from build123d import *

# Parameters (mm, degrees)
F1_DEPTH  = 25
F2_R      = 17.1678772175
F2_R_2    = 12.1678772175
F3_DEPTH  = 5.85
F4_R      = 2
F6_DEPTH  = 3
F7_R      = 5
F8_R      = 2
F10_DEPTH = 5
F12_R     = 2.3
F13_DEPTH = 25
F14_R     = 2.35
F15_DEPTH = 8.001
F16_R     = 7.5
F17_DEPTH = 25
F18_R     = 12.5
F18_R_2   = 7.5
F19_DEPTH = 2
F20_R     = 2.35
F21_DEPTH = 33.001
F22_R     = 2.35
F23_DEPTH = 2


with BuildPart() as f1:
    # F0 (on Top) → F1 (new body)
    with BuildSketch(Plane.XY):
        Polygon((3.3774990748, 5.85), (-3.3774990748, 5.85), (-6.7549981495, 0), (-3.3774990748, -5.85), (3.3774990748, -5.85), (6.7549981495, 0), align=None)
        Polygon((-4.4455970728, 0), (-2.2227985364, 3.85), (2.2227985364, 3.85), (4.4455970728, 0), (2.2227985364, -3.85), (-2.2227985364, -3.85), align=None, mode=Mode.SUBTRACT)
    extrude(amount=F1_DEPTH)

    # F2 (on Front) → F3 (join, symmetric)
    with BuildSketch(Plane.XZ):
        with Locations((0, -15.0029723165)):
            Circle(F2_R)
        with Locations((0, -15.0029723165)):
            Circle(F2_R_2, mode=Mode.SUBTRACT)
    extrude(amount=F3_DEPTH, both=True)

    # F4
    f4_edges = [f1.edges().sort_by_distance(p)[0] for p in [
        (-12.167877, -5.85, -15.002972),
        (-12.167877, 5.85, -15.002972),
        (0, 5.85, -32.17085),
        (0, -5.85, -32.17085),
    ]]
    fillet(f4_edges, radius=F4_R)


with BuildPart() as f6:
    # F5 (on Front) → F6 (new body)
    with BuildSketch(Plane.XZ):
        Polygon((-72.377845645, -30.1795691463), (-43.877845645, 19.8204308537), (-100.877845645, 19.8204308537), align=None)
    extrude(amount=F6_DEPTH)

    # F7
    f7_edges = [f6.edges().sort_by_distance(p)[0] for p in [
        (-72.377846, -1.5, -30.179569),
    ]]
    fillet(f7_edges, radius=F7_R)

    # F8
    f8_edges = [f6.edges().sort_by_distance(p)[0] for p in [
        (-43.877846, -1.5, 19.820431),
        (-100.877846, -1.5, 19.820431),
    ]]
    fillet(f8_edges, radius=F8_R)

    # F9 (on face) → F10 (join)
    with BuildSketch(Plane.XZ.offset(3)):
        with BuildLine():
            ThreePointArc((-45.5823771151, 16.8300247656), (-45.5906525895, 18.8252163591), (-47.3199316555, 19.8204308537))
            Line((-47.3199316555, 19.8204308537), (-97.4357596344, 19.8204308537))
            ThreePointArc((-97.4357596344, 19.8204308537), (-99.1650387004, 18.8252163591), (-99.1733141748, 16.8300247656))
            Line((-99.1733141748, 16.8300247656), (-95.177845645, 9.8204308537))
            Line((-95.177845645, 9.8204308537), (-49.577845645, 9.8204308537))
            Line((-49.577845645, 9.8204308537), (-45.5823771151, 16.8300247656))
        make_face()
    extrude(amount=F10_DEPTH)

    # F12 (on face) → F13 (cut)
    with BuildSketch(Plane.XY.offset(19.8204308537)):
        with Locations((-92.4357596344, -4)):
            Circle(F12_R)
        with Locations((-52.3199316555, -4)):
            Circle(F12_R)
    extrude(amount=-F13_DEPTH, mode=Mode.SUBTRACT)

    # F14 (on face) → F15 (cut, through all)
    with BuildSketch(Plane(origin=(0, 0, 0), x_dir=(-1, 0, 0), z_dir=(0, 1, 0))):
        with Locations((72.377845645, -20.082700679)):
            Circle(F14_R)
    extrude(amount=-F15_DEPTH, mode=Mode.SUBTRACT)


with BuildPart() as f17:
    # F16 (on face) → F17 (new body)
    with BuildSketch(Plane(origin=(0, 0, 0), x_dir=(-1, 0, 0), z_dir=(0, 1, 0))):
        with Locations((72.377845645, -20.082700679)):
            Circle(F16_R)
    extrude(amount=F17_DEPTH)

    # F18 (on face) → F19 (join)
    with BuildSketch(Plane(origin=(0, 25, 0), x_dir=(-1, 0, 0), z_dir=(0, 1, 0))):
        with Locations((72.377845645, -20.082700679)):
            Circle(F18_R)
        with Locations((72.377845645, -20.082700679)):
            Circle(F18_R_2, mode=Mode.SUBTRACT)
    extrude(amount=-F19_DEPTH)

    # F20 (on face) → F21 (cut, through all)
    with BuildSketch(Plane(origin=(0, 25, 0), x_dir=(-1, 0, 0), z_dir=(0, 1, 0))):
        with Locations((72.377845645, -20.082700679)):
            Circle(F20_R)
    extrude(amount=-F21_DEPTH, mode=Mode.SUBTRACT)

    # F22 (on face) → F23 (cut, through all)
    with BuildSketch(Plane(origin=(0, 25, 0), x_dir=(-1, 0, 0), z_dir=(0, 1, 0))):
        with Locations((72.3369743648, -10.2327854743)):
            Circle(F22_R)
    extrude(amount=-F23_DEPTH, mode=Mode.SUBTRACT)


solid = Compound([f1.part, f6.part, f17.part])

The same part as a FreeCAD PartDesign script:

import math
import FreeCAD as App
import Part
import Sketcher
from FreeCAD import Vector
Q = App.Units.Quantity


def edges_at(feature, points):
    """Names of the edges that pass closest to the given points."""
    edges = feature.Shape.Edges
    near = lambda p: min(range(len(edges)), key=lambda i: edges[i].distToShape(Part.Vertex(*p))[0])
    return sorted({f"Edge{near(p) + 1}" for p in points})

doc = App.newDocument("Part")
body = doc.addObject("PartDesign::Body", "Body")

sketch1 = doc.addObject("Sketcher::SketchObject", "Sketch")
body.addObject(sketch1)
sketch1.AttachmentSupport = (doc.XY_Plane, [""])
sketch1.MapMode = "FlatFace"
sketch1.addGeometry(Part.LineSegment(Vector(3.377499, 5.85, 0), Vector(-3.377499, 5.85, 0)), False)
sketch1.addGeometry(Part.LineSegment(Vector(-3.377499, 5.85, 0), Vector(-6.754998, 0, 0)), False)
sketch1.addGeometry(Part.LineSegment(Vector(-6.754998, 0, 0), Vector(-3.377499, -5.85, 0)), False)
sketch1.addGeometry(Part.LineSegment(Vector(-3.377499, -5.85, 0), Vector(3.377499, -5.85, 0)), False)
sketch1.addGeometry(Part.LineSegment(Vector(3.377499, -5.85, 0), Vector(6.754998, 0, 0)), False)
sketch1.addGeometry(Part.LineSegment(Vector(6.754998, 0, 0), Vector(3.377499, 5.85, 0)), False)
sketch1.addGeometry(Part.LineSegment(Vector(-2.222799, -3.85, 0), Vector(-4.445597, 0, 0)), False)
sketch1.addGeometry(Part.LineSegment(Vector(-4.445597, 0, 0), Vector(-2.222799, 3.85, 0)), False)
sketch1.addGeometry(Part.LineSegment(Vector(-2.222799, 3.85, 0), Vector(2.222799, 3.85, 0)), False)
sketch1.addGeometry(Part.LineSegment(Vector(2.222799, 3.85, 0), Vector(4.445597, 0, 0)), False)
sketch1.addGeometry(Part.LineSegment(Vector(4.445597, 0, 0), Vector(2.222799, -3.85, 0)), False)
sketch1.addGeometry(Part.LineSegment(Vector(2.222799, -3.85, 0), Vector(-2.222799, -3.85, 0)), False)
sketch1.addConstraint(Sketcher.Constraint("Coincident", 0, 2, 1, 1))
sketch1.addConstraint(Sketcher.Constraint("Coincident", 1, 2, 2, 1))
sketch1.addConstraint(Sketcher.Constraint("Coincident", 2, 2, 3, 1))
sketch1.addConstraint(Sketcher.Constraint("Coincident", 3, 2, 4, 1))
sketch1.addConstraint(Sketcher.Constraint("Coincident", 4, 2, 5, 1))
sketch1.addConstraint(Sketcher.Constraint("Coincident", 5, 2, 0, 1))
sketch1.addConstraint(Sketcher.Constraint("Coincident", 6, 2, 7, 1))
sketch1.addConstraint(Sketcher.Constraint("Coincident", 7, 2, 8, 1))
sketch1.addConstraint(Sketcher.Constraint("Coincident", 8, 2, 9, 1))
sketch1.addConstraint(Sketcher.Constraint("Coincident", 9, 2, 10, 1))
sketch1.addConstraint(Sketcher.Constraint("Coincident", 10, 2, 11, 1))
sketch1.addConstraint(Sketcher.Constraint("Coincident", 11, 2, 6, 1))
sketch1.addConstraint(Sketcher.Constraint("Horizontal", 0))
sketch1.addConstraint(Sketcher.Constraint("Horizontal", 3))
sketch1.addConstraint(Sketcher.Constraint("Horizontal", 8))
sketch1.addConstraint(Sketcher.Constraint("Horizontal", 11))
sketch1.addConstraint(Sketcher.Constraint("Symmetric", 0, 2, 3, 2, -1, 1))
sketch1.addConstraint(Sketcher.Constraint("Symmetric", 1, 2, 4, 2, -1, 1))
sketch1.addConstraint(Sketcher.Constraint("Symmetric", 6, 2, 9, 2, -1, 1))
sketch1.addConstraint(Sketcher.Constraint("Symmetric", 7, 2, 10, 2, -1, 1))
sketch1.addConstraint(Sketcher.Constraint("PointOnObject", 1, 2, -1))
sketch1.addConstraint(Sketcher.Constraint("PointOnObject", 6, 2, -1))
sketch1.addConstraint(Sketcher.Constraint("Parallel", 2, 5))
sketch1.addConstraint(Sketcher.Constraint("Parallel", 5, 6))
sketch1.addConstraint(Sketcher.Constraint("Parallel", 4, 7))
sketch1.addConstraint(Sketcher.Constraint("Parallel", 6, 9))
sketch1.addConstraint(Sketcher.Constraint("Vertical", 0, 2, 2, 2))
sketch1.addConstraint(Sketcher.Constraint("Angle", 1, Q("-120 deg")))
sketch1.addConstraint(Sketcher.Constraint("DistanceY", 7, 2, 0, 2, 2.0))
sketch1.addConstraint(Sketcher.Constraint("DistanceY", 2, 2, 0, 2, 11.7))
sketch1.addConstraint(Sketcher.Constraint("DistanceX", 0, 2, 0, 1, 6.754998))
sketch1.addConstraint(Sketcher.Constraint("DistanceX", 7, 2, -1, 1, 2.222799))
pad1 = doc.addObject("PartDesign::Pad", "Pad")
body.addObject(pad1)
pad1.Profile = sketch1
pad1.Length = 25

sketch2 = doc.addObject("Sketcher::SketchObject", "Sketch001")
body.addObject(sketch2)
sketch2.AttachmentSupport = (doc.XZ_Plane, [""])
sketch2.MapMode = "FlatFace"
sketch2.addGeometry(Part.Circle(Vector(0, -15.002972, 0), Vector(0, 0, 1), 17.167877), False)
sketch2.addGeometry(Part.Circle(Vector(0, -15.002972, 0), Vector(0, 0, 1), 12.167877), False)
sketch2.addConstraint(Sketcher.Constraint("Coincident", 1, 3, 0, 3))
sketch2.addConstraint(Sketcher.Constraint("PointOnObject", 0, 3, -2))
sketch2.addConstraint(Sketcher.Constraint("Diameter", 0, 34.335754))
sketch2.addConstraint(Sketcher.Constraint("Diameter", 1, 24.335754))
sketch2.addConstraint(Sketcher.Constraint("DistanceY", 0, 3, -1, 1, 15.002972))
pad2 = doc.addObject("PartDesign::Pad", "Pad001")
body.addObject(pad2)
pad2.Profile = sketch2
pad2.Length = 11.7
pad2.Midplane = True
doc.recompute()

fillet = doc.addObject("PartDesign::Fillet", "Fillet")
body.addObject(fillet)
fillet.Base = (pad2, edges_at(pad2, [
    (-12.168, -5.85, -15.003),
    (-12.168, 5.85, -15.003),
    (0, 5.85, -32.171),
    (0, -5.85, -32.171),
]))
fillet.Radius = 2
body2 = doc.addObject("PartDesign::Body", "Body001")

sketch3 = doc.addObject("Sketcher::SketchObject", "Sketch002")
body2.addObject(sketch3)
sketch3.AttachmentSupport = (doc.getObject("XZ_Plane001"), [""])
sketch3.MapMode = "FlatFace"
sketch3.addGeometry(Part.LineSegment(Vector(-72.377846, -30.179569, 0), Vector(-43.877846, 19.820431, 0)), False)
sketch3.addGeometry(Part.LineSegment(Vector(-43.877846, 19.820431, 0), Vector(-100.877846, 19.820431, 0)), False)
sketch3.addGeometry(Part.LineSegment(Vector(-100.877846, 19.820431, 0), Vector(-72.377846, -30.179569, 0)), False)
sketch3.addConstraint(Sketcher.Constraint("Coincident", 0, 2, 1, 1))
sketch3.addConstraint(Sketcher.Constraint("Coincident", 1, 2, 2, 1))
sketch3.addConstraint(Sketcher.Constraint("Coincident", 2, 2, 0, 1))
sketch3.addConstraint(Sketcher.Constraint("Horizontal", 1))
sketch3.addConstraint(Sketcher.Constraint("Equal", 0, 2))
sketch3.addConstraint(Sketcher.Constraint("DistanceX", 1, 2, 1, 1, 57.0))
sketch3.addConstraint(Sketcher.Constraint("DistanceY", 2, 2, 0, 2, 50.0))
sketch3.addConstraint(Sketcher.Constraint("DistanceY", -1, 1, 0, 2, 19.820431))
sketch3.addConstraint(Sketcher.Constraint("DistanceX", 0, 2, -1, 1, 43.877846))
pad3 = doc.addObject("PartDesign::Pad", "Pad002")
body2.addObject(pad3)
pad3.Profile = sketch3
pad3.Length = 3
doc.recompute()

fillet2 = doc.addObject("PartDesign::Fillet", "Fillet001")
body2.addObject(fillet2)
fillet2.Base = (pad3, edges_at(pad3, [(-72.378, -1.5, -30.18)]))
fillet2.Radius = 5
doc.recompute()

fillet3 = doc.addObject("PartDesign::Fillet", "Fillet002")
body2.addObject(fillet3)
fillet3.Base = (fillet2, edges_at(fillet2, [(-43.878, -1.5, 19.82), (-100.878, -1.5, 19.82)]))
fillet3.Radius = 2

sketch4 = doc.addObject("Sketcher::SketchObject", "Sketch003")
body2.addObject(sketch4)
sketch4.AttachmentSupport = (doc.getObject("XZ_Plane001"), [""])
sketch4.MapMode = "FlatFace"
sketch4.AttachmentOffset = App.Placement(Vector(0, 0, 3), App.Rotation())
sketch4.addGeometry(Part.ArcOfCircle(Part.Circle(Vector(-47.319932, 17.820431, 0), Vector(0, 0, 1), 2), math.radians(-29.68314), math.radians(90)), False)
sketch4.addGeometry(Part.LineSegment(Vector(-47.319932, 19.820431, 0), Vector(-97.43576, 19.820431, 0)), False)
sketch4.addGeometry(Part.ArcOfCircle(Part.Circle(Vector(-97.43576, 17.820431, 0), Vector(0, 0, 1), 2), math.radians(90), math.radians(209.68314)), False)
sketch4.addGeometry(Part.LineSegment(Vector(-99.173314, 16.830025, 0), Vector(-95.177846, 9.820431, 0)), False)
sketch4.addGeometry(Part.LineSegment(Vector(-95.177846, 9.820431, 0), Vector(-49.577846, 9.820431, 0)), False)
sketch4.addGeometry(Part.LineSegment(Vector(-49.577846, 9.820431, 0), Vector(-45.582377, 16.830025, 0)), False)
sketch4.addConstraint(Sketcher.Constraint("Tangent", 0, 2, 1, 1))
sketch4.addConstraint(Sketcher.Constraint("Tangent", 1, 2, 2, 1))
sketch4.addConstraint(Sketcher.Constraint("Tangent", 2, 2, 3, 1))
sketch4.addConstraint(Sketcher.Constraint("Coincident", 3, 2, 4, 1))
sketch4.addConstraint(Sketcher.Constraint("Coincident", 4, 2, 5, 1))
sketch4.addConstraint(Sketcher.Constraint("Tangent", 5, 2, 0, 1))
sketch4.addConstraint(Sketcher.Constraint("Horizontal", 1))
sketch4.addConstraint(Sketcher.Constraint("Horizontal", 4))
sketch4.addConstraint(Sketcher.Constraint("Equal", 0, 2))
sketch4.addConstraint(Sketcher.Constraint("Horizontal", 2, 2, 5, 2))
sketch4.addConstraint(Sketcher.Constraint("Radius", 0, 2.0))
sketch4.addConstraint(Sketcher.Constraint("DistanceX", 4, 1, 4, 2, 45.6))
sketch4.addConstraint(Sketcher.Constraint("DistanceY", 3, 2, 2, 3, 8.0))
sketch4.addConstraint(Sketcher.Constraint("DistanceX", 1, 2, 1, 1, 50.115828))
sketch4.addConstraint(Sketcher.Constraint("DistanceX", 0, 3, -1, 1, 47.319932))
sketch4.addConstraint(Sketcher.Constraint("DistanceY", -1, 1, 0, 3, 17.820431))
pad4 = doc.addObject("PartDesign::Pad", "Pad003")
body2.addObject(pad4)
pad4.Profile = sketch4
pad4.Length = 5

sketch5 = doc.addObject("Sketcher::SketchObject", "Sketch004")
body2.addObject(sketch5)
sketch5.AttachmentSupport = (doc.getObject("XY_Plane001"), [""])
sketch5.MapMode = "FlatFace"
sketch5.AttachmentOffset = App.Placement(Vector(0, 0, 19.820431), App.Rotation())
sketch5.addGeometry(Part.Circle(Vector(-92.43576, -4, 0), Vector(0, 0, 1), 2.3), False)
sketch5.addGeometry(Part.Circle(Vector(-52.319932, -4, 0), Vector(0, 0, 1), 2.3), False)
sketch5.addConstraint(Sketcher.Constraint("Equal", 0, 1))
sketch5.addConstraint(Sketcher.Constraint("Horizontal", 0, 3, 1, 3))
sketch5.addConstraint(Sketcher.Constraint("Diameter", 0, 4.6))
sketch5.addConstraint(Sketcher.Constraint("DistanceY", 0, 3, -1, 1, 4.0))
sketch5.addConstraint(Sketcher.Constraint("DistanceX", 0, 3, -1, 1, 92.43576))
sketch5.addConstraint(Sketcher.Constraint("DistanceX", 1, 3, -1, 1, 52.319932))
pocket1 = doc.addObject("PartDesign::Pocket", "Pocket")
body2.addObject(pocket1)
pocket1.Profile = sketch5
pocket1.Length = 25

sketch6 = doc.addObject("Sketcher::SketchObject", "Sketch005")
body2.addObject(sketch6)
sketch6.AttachmentSupport = (doc.getObject("XZ_Plane001"), [""])
sketch6.MapMode = "FlatFace"
sketch6.addGeometry(Part.Circle(Vector(-72.377846, -20.082701, 0), Vector(0, 0, 1), 2.35), False)
sketch6.addConstraint(Sketcher.Constraint("Diameter", 0, 4.7))
sketch6.addConstraint(Sketcher.Constraint("DistanceY", 0, 3, -1, 1, 20.082701))
sketch6.addConstraint(Sketcher.Constraint("DistanceX", 0, 3, -1, 1, 72.377846))
pocket2 = doc.addObject("PartDesign::Pocket", "Pocket001")
body2.addObject(pocket2)
pocket2.Profile = sketch6
pocket2.Type = "ThroughAll"
pocket2.Reversed = True
body3 = doc.addObject("PartDesign::Body", "Body002")

sketch7 = doc.addObject("Sketcher::SketchObject", "Sketch006")
body3.addObject(sketch7)
sketch7.AttachmentSupport = (doc.getObject("XZ_Plane002"), [""])
sketch7.MapMode = "FlatFace"
sketch7.addGeometry(Part.Circle(Vector(-72.377846, -20.082701, 0), Vector(0, 0, 1), 7.5), False)
sketch7.addConstraint(Sketcher.Constraint("Diameter", 0, 15.0))
sketch7.addConstraint(Sketcher.Constraint("DistanceY", 0, 3, -1, 1, 20.082701))
sketch7.addConstraint(Sketcher.Constraint("DistanceX", 0, 3, -1, 1, 72.377846))
pad5 = doc.addObject("PartDesign::Pad", "Pad004")
body3.addObject(pad5)
pad5.Profile = sketch7
pad5.Length = 25
pad5.Reversed = True

sketch8 = doc.addObject("Sketcher::SketchObject", "Sketch007")
body3.addObject(sketch8)
sketch8.AttachmentSupport = (doc.getObject("XZ_Plane002"), [""])
sketch8.MapMode = "FlatFace"
sketch8.AttachmentOffset = App.Placement(Vector(0, 0, -25), App.Rotation())
sketch8.addGeometry(Part.Circle(Vector(-72.377846, -20.082701, 0), Vector(0, 0, 1), 12.5), False)
sketch8.addGeometry(Part.Circle(Vector(-72.377846, -20.082701, 0), Vector(0, 0, 1), 7.5), False)
sketch8.addConstraint(Sketcher.Constraint("Coincident", 1, 3, 0, 3))
sketch8.addConstraint(Sketcher.Constraint("Diameter", 0, 25.0))
sketch8.addConstraint(Sketcher.Constraint("Diameter", 1, 15.0))
sketch8.addConstraint(Sketcher.Constraint("DistanceY", 0, 3, -1, 1, 20.082701))
sketch8.addConstraint(Sketcher.Constraint("DistanceX", 0, 3, -1, 1, 72.377846))
pad6 = doc.addObject("PartDesign::Pad", "Pad005")
body3.addObject(pad6)
pad6.Profile = sketch8
pad6.Length = 2

sketch9 = doc.addObject("Sketcher::SketchObject", "Sketch008")
body3.addObject(sketch9)
sketch9.AttachmentSupport = (doc.getObject("XZ_Plane002"), [""])
sketch9.MapMode = "FlatFace"
sketch9.AttachmentOffset = App.Placement(Vector(0, 0, -25), App.Rotation())
sketch9.addGeometry(Part.Circle(Vector(-72.377846, -20.082701, 0), Vector(0, 0, 1), 2.35), False)
sketch9.addConstraint(Sketcher.Constraint("Diameter", 0, 4.7))
sketch9.addConstraint(Sketcher.Constraint("DistanceY", 0, 3, -1, 1, 20.082701))
sketch9.addConstraint(Sketcher.Constraint("DistanceX", 0, 3, -1, 1, 72.377846))
pocket3 = doc.addObject("PartDesign::Pocket", "Pocket002")
body3.addObject(pocket3)
pocket3.Profile = sketch9
pocket3.Type = "ThroughAll"
pocket3.Reversed = True

sketch10 = doc.addObject("Sketcher::SketchObject", "Sketch009")
body3.addObject(sketch10)
sketch10.AttachmentSupport = (doc.getObject("XZ_Plane002"), [""])
sketch10.MapMode = "FlatFace"
sketch10.AttachmentOffset = App.Placement(Vector(0, 0, -25), App.Rotation())
sketch10.addGeometry(Part.Circle(Vector(-72.336974, -10.232785, 0), Vector(0, 0, 1), 2.35), False)
sketch10.addConstraint(Sketcher.Constraint("Diameter", 0, 4.7))
sketch10.addConstraint(Sketcher.Constraint("DistanceX", 0, 3, -1, 1, 72.336974))
sketch10.addConstraint(Sketcher.Constraint("DistanceY", 0, 3, -1, 1, 10.232785))
pocket4 = doc.addObject("PartDesign::Pocket", "Pocket003")
body3.addObject(pocket4)
pocket4.Profile = sketch10
pocket4.Type = "ThroughAll"
pocket4.Reversed = True

doc.recompute()
